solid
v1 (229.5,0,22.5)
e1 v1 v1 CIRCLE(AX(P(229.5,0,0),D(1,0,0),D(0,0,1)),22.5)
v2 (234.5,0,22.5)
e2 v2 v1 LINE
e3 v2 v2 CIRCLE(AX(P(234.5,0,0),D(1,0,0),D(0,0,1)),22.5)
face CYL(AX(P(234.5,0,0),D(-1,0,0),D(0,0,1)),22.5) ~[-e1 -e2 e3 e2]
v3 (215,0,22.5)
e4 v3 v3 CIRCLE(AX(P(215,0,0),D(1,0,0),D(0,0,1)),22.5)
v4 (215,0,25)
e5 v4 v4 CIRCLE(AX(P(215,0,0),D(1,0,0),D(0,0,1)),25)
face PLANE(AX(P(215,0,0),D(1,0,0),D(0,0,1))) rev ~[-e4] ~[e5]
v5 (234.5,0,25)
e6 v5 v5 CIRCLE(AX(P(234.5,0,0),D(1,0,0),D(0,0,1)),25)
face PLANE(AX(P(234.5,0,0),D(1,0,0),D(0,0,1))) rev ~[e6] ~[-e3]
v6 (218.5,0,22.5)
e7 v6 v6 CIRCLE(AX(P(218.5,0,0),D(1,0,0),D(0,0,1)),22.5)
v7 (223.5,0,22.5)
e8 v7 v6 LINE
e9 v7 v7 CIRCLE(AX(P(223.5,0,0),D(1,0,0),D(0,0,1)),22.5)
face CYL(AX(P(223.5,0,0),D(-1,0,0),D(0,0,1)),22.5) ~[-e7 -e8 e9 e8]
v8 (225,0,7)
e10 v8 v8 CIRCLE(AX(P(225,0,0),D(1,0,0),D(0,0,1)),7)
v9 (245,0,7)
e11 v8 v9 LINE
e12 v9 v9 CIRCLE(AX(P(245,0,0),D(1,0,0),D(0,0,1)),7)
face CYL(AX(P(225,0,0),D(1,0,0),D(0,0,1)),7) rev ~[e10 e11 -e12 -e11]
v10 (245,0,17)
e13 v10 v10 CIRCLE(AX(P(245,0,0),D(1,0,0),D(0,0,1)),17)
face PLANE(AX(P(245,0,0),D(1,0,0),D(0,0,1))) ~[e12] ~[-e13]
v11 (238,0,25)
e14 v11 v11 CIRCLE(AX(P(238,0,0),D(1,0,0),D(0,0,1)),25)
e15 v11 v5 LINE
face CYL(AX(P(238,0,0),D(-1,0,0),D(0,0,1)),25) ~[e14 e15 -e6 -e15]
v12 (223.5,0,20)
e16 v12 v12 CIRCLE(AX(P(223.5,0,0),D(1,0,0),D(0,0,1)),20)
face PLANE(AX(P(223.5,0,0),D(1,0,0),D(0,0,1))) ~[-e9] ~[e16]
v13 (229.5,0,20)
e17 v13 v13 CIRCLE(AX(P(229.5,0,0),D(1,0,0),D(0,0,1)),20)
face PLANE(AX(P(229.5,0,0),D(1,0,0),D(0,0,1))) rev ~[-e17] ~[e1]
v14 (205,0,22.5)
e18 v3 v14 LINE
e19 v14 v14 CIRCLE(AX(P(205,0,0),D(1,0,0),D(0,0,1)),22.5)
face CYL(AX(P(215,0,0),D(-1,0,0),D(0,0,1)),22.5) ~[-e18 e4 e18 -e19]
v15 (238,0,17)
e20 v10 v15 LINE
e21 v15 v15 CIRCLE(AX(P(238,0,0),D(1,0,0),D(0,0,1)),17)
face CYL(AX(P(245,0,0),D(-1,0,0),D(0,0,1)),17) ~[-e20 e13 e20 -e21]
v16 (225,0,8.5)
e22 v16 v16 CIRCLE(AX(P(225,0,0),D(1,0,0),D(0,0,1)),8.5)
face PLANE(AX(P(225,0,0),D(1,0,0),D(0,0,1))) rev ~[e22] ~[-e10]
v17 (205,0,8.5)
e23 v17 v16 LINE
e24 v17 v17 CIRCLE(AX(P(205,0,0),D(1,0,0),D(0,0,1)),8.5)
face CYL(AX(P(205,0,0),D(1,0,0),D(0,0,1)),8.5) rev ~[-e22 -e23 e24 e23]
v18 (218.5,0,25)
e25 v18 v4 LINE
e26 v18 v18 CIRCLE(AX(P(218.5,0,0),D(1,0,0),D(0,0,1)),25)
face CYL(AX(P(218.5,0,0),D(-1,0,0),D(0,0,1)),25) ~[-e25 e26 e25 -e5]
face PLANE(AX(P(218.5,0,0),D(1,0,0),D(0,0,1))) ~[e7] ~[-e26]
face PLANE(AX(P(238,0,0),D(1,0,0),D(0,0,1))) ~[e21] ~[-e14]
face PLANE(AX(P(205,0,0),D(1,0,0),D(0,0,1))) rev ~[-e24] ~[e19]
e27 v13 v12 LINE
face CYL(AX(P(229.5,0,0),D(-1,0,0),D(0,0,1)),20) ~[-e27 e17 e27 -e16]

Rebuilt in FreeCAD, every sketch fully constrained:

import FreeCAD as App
import Part
import Sketcher
from FreeCAD import Vector
Q = App.Units.Quantity


def add_polygon(sketch, points):
    """Adds a closed chain of lines whose ends are joined by coincident constraints."""
    first, n = sketch.GeometryCount, len(points)
    for a, b in zip(points, points[1:] + points[:1]):
        sketch.addGeometry(Part.LineSegment(App.Vector(*a, 0), App.Vector(*b, 0)), False)
    for i in range(n):
        sketch.addConstraint(Sketcher.Constraint("Coincident", first + i, 2, first + (i + 1) % n, 1))

doc = App.newDocument("Part")
body = doc.addObject("PartDesign::Body", "Body")

# Sketch on XZ plane
sketch1 = doc.addObject("Sketcher::SketchObject", "Sketch")
body.addObject(sketch1)
sketch1.AttachmentSupport = (doc.XZ_Plane, [""])
sketch1.MapMode = "FlatFace"
add_polygon(sketch1, [(215, 22.5), (205, 22.5), (205, 8.5), (225, 8.5), (225, 7), (245, 7), (245, 17), (238, 17), (238, 25), (234.5, 25), (234.5, 22.5), (229.5, 22.5), (229.5, 20), (223.5, 20), (223.5, 22.5), (218.5, 22.5), (218.5, 25), (215, 25)])  # lines 0-17
sketch1.addConstraint([
    Sketcher.Constraint("Horizontal", 0),
    Sketcher.Constraint("Vertical", 1),
    Sketcher.Constraint("Horizontal", 2),
    Sketcher.Constraint("Vertical", 3),
    Sketcher.Constraint("Horizontal", 4),
    Sketcher.Constraint("Vertical", 5),
    Sketcher.Constraint("Horizontal", 6),
    Sketcher.Constraint("Vertical", 7),
    Sketcher.Constraint("Horizontal", 8),
    Sketcher.Constraint("Vertical", 9),
    Sketcher.Constraint("Horizontal", 10),
    Sketcher.Constraint("Vertical", 11),
    Sketcher.Constraint("Horizontal", 12),
    Sketcher.Constraint("Vertical", 13),
    Sketcher.Constraint("Horizontal", 14),
    Sketcher.Constraint("Vertical", 15),
    Sketcher.Constraint("Horizontal", 16),
    Sketcher.Constraint("Vertical", 17),
    Sketcher.Constraint("Horizontal", 0, 2, 9, 2),
    Sketcher.Constraint("Horizontal", 10, 2, 13, 2),
    Sketcher.Constraint("Horizontal", 8, 2, 15, 2),
    Sketcher.Constraint("Equal", 2, 4),
    Sketcher.Constraint("Equal", 10, 14),
    Sketcher.Constraint("Equal", 8, 16),
    Sketcher.Constraint("Equal", 0, 5),
    Sketcher.Constraint("Equal", 9, 11),
    Sketcher.Constraint("DistanceX", 0, 2, 0, 1, Q("10 mm")),
    Sketcher.Constraint("DistanceX", 2, 1, 2, 2, Q("20 mm")),
    Sketcher.Constraint("DistanceX", 6, 2, 6, 1, Q("7 mm")),
    Sketcher.Constraint("DistanceX", 10, 2, 10, 1, Q("5 mm")),
    Sketcher.Constraint("DistanceX", 12, 2, 12, 1, Q("6 mm")),
    Sketcher.Constraint("DistanceY", 1, 2, 1, 1, Q("14 mm")),
    Sketcher.Constraint("DistanceY", 7, 1, 7, 2, Q("8 mm")),
    Sketcher.Constraint("DistanceY", 3, 2, 3, 1, Q("1.5 mm")),
    Sketcher.Constraint("DistanceX", -1, 1, 0, 2, Q("205 mm")),
    Sketcher.Constraint("DistanceY", -1, 1, 3, 2, Q("7 mm")),
])
revolution = doc.addObject("PartDesign::Revolution", "Revolution")
body.addObject(revolution)
revolution.Profile = sketch1
revolution.ReferenceAxis = (sketch1, ["H_Axis"])
revolution.Angle = 360

doc.recompute()
